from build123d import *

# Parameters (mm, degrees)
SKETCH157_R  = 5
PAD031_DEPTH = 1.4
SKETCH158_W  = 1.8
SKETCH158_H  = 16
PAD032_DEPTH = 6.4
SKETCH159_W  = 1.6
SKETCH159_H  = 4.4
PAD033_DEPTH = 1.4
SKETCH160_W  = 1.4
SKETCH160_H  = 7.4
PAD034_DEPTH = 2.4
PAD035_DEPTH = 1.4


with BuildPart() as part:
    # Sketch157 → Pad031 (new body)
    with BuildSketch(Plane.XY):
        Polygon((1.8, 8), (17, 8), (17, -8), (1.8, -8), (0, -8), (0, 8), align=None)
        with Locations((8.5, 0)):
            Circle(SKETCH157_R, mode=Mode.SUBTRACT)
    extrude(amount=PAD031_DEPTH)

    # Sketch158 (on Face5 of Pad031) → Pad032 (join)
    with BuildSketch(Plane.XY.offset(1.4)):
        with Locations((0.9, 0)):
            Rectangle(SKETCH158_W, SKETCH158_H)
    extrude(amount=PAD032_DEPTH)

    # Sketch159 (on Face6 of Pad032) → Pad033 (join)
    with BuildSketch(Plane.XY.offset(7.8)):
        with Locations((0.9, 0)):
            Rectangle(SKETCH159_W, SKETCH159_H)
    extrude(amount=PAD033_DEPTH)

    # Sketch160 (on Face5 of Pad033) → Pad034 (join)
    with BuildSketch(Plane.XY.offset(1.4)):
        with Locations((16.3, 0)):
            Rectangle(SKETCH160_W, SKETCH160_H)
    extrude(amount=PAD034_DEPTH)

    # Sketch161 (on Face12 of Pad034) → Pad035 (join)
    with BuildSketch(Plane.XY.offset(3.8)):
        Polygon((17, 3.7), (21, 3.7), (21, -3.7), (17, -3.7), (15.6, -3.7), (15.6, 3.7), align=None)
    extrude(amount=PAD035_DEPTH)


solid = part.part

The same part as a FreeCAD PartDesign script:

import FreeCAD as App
import Part
import Sketcher
Q = App.Units.Quantity

doc = App.newDocument("Part")
params = doc.addObject("Spreadsheet::Sheet", "Params")
for row, (alias, value) in enumerate([
    ("sketch1_diameter", "10 mm"),
    ("sketch1_width", "17 mm"),
    ("sketch1_height", "16 mm"),
    ("pad1_length", "1.4 mm"),
    ("sketch2_height", "16 mm"),
    ("sketch2_width", "1.8 mm"),
    ("pad2_length", "6.4 mm"),
    ("sketch3_width", "1.6 mm"),
    ("sketch3_height", "4.4 mm"),
    ("pad3_length", "1.4 mm"),
    ("sketch4_width", "1.4 mm"),
    ("sketch4_height", "7.4 mm"),
    ("pad4_length", "2.4 mm"),
    ("sketch5_width", "5.4 mm"),
    ("sketch5_height", "7.4 mm"),
    ("pad5_length", "1.4 mm"),
], start=1):
    params.set(f"A{row}", alias)
    params.set(f"B{row}", "=" + value)
    params.setAlias(f"B{row}", alias)

body = doc.addObject("PartDesign::Body", "Body")

# Sketch on XY plane
sketch1 = body.newObject("Sketcher::SketchObject", "Sketch")
sketch1.AttachmentSupport = (doc.getObject("XY_Plane"), [""])
sketch1.MapMode = "FlatFace"
sketch1.addGeometry([
    Part.LineSegment(App.Vector(17, 8, 0), App.Vector(0, 8, 0)),  # 0
    Part.LineSegment(App.Vector(0, 8, 0), App.Vector(0, -8, 0)),  # 1
    Part.LineSegment(App.Vector(0, -8, 0), App.Vector(17, -8, 0)),  # 2
    Part.LineSegment(App.Vector(17, -8, 0), App.Vector(17, 8, 0)),  # 3
    Part.Circle(App.Vector(8, 0, 0), App.Vector(0, 0, 1), 5),  # 4
], False)
sketch1.addConstraint([
    Sketcher.Constraint("Coincident", 0, 2, 1, 1),
    Sketcher.Constraint("Coincident", 1, 2, 2, 1),
    Sketcher.Constraint("Coincident", 2, 2, 3, 1),
    Sketcher.Constraint("Coincident", 3, 2, 0, 1),
    Sketcher.Constraint("Horizontal", 0),
    Sketcher.Constraint("Vertical", 1),
    Sketcher.Constraint("Horizontal", 2),
    Sketcher.Constraint("Vertical", 3),
    Sketcher.Constraint("Symmetric", 0, 2, 1, 2, -1, 1),
    Sketcher.Constraint("PointOnObject", 4, 3, -1),
    Sketcher.Constraint("Diameter", 4, Q("10 mm")),
    Sketcher.Constraint("DistanceX", 0, 2, 0, 1, Q("17 mm")),
    Sketcher.Constraint("DistanceY", 1, 2, 1, 1, Q("16 mm")),
    Sketcher.Constraint("DistanceX", -1, 1, 4, 3, Q("8.5 mm")),
])
sketch1.setExpression("Constraints[10]", "Params.sketch1_diameter")
sketch1.setExpression("Constraints[11]", "Params.sketch1_width")
sketch1.setExpression("Constraints[12]", "Params.sketch1_height")
pad1 = body.newObject("PartDesign::Pad", "Pad")
pad1.Profile = sketch1
pad1.setExpression("Length", "Params.pad1_length")

# Sketch on XY plane
sketch2 = body.newObject("Sketcher::SketchObject", "Sketch001")
sketch2.AttachmentSupport = (doc.getObject("XY_Plane"), [""])
sketch2.MapMode = "FlatFace"
sketch2.AttachmentOffset = App.Placement(App.Vector(0, 0, 1.4), App.Rotation())
sketch2.addGeometry([
    Part.LineSegment(App.Vector(0, 8, 0), App.Vector(0, -8, 0)),
    Part.LineSegment(App.Vector(0, -8, 0), App.Vector(1.8, -8, 0)),
    Part.LineSegment(App.Vector(1.8, -8, 0), App.Vector(1.8, 8, 0)),
    Part.LineSegment(App.Vector(1.8, 8, 0), App.Vector(0, 8, 0)),
], False)
sketch2.addConstraint([
    Sketcher.Constraint("Coincident", 0, 2, 1, 1),
    Sketcher.Constraint("Coincident", 1, 2, 2, 1),
    Sketcher.Constraint("Coincident", 2, 2, 3, 1),
    Sketcher.Constraint("Coincident", 3, 2, 0, 1),
    Sketcher.Constraint("Vertical", 0),
    Sketcher.Constraint("Horizontal", 1),
    Sketcher.Constraint("Vertical", 2),
    Sketcher.Constraint("Horizontal", 3),
    Sketcher.Constraint("Symmetric", 0, 2, 3, 2, -1, 1),
    Sketcher.Constraint("DistanceY", 0, 2, 0, 1, Q("16 mm")),
    Sketcher.Constraint("DistanceX", 1, 1, 1, 2, Q("1.8 mm")),
])
sketch2.setExpression("Constraints[9]", "Params.sketch2_height")
sketch2.setExpression("Constraints[10]", "Params.sketch2_width")
pad2 = body.newObject("PartDesign::Pad", "Pad001")
pad2.Profile = sketch2
pad2.setExpression("Length", "Params.pad2_length")

# Sketch on XY plane
sketch3 = body.newObject("Sketcher::SketchObject", "Sketch002")
sketch3.AttachmentSupport = (doc.getObject("XY_Plane"), [""])
sketch3.MapMode = "FlatFace"
sketch3.AttachmentOffset = App.Placement(App.Vector(0, 0, 7.8), App.Rotation())
sketch3.addGeometry([
    Part.LineSegment(App.Vector(0.1, 2.2, 0), App.Vector(0.1, -2.2, 0)),
    Part.LineSegment(App.Vector(0.1, -2.2, 0), App.Vector(1.7, -2.2, 0)),
    Part.LineSegment(App.Vector(1.7, -2.2, 0), App.Vector(1.7, 2.2, 0)),
    Part.LineSegment(App.Vector(1.7, 2.2, 0), App.Vector(0.1, 2.2, 0)),
], False)
sketch3.addConstraint([
    Sketcher.Constraint("Coincident", 0, 2, 1, 1),
    Sketcher.Constraint("Coincident", 1, 2, 2, 1),
    Sketcher.Constraint("Coincident", 2, 2, 3, 1),
    Sketcher.Constraint("Coincident", 3, 2, 0, 1),
    Sketcher.Constraint("Vertical", 0),
    Sketcher.Constraint("Horizontal", 1),
    Sketcher.Constraint("Vertical", 2),
    Sketcher.Constraint("Horizontal", 3),
    Sketcher.Constraint("DistanceX", 1, 1, 1, 2, Q("1.6 mm")),
    Sketcher.Constraint("DistanceY", 0, 2, 0, 1, Q("4.4 mm")),
    Sketcher.Constraint("DistanceX", -1, 1, 0, 2, Q("0.1 mm")),
    Sketcher.Constraint("DistanceY", 0, 2, -1, 1, Q("2.2 mm")),
])
sketch3.setExpression("Constraints[8]", "Params.sketch3_width")
sketch3.setExpression("Constraints[9]", "Params.sketch3_height")
pad3 = body.newObject("PartDesign::Pad", "Pad002")
pad3.Profile = sketch3
pad3.setExpression("Length", "Params.pad3_length")

# Sketch on XY plane
sketch4 = body.newObject("Sketcher::SketchObject", "Sketch003")
sketch4.AttachmentSupport = (doc.getObject("XY_Plane"), [""])
sketch4.MapMode = "FlatFace"
sketch4.AttachmentOffset = App.Placement(App.Vector(0, 0, 1.4), App.Rotation())
sketch4.addGeometry([
    Part.LineSegment(App.Vector(15.6, 3.7, 0), App.Vector(15.6, -3.7, 0)),
    Part.LineSegment(App.Vector(15.6, -3.7, 0), App.Vector(17, -3.7, 0)),
    Part.LineSegment(App.Vector(17, -3.7, 0), App.Vector(17, 3.7, 0)),
    Part.LineSegment(App.Vector(17, 3.7, 0), App.Vector(15.6, 3.7, 0)),
], False)
sketch4.addConstraint([
    Sketcher.Constraint("Coincident", 0, 2, 1, 1),
    Sketcher.Constraint("Coincident", 1, 2, 2, 1),
    Sketcher.Constraint("Coincident", 2, 2, 3, 1),
    Sketcher.Constraint("Coincident", 3, 2, 0, 1),
    Sketcher.Constraint("Vertical", 0),
    Sketcher.Constraint("Horizontal", 1),
    Sketcher.Constraint("Vertical", 2),
    Sketcher.Constraint("Horizontal", 3),
    Sketcher.Constraint("DistanceX", 1, 1, 1, 2, Q("1.4 mm")),
    Sketcher.Constraint("DistanceY", 0, 2, 0, 1, Q("7.4 mm")),
    Sketcher.Constraint("DistanceX", -1, 1, 1, 2, Q("17 mm")),
    Sketcher.Constraint("DistanceY", 0, 2, -1, 1, Q("3.7 mm")),
])
sketch4.setExpression("Constraints[8]", "Params.sketch4_width")
sketch4.setExpression("Constraints[9]", "Params.sketch4_height")
pad4 = body.newObject("PartDesign::Pad", "Pad003")
pad4.Profile = sketch4
pad4.setExpression("Length", "Params.pad4_length")

# Sketch on XY plane
sketch5 = body.newObject("Sketcher::SketchObject", "Sketch004")
sketch5.AttachmentSupport = (doc.getObject("XY_Plane"), [""])
sketch5.MapMode = "FlatFace"
sketch5.AttachmentOffset = App.Placement(App.Vector(0, 0, 3.8), App.Rotation())
sketch5.addGeometry([
    Part.LineSegment(App.Vector(21, 4, 0), App.Vector(16, 4, 0)),
    Part.LineSegment(App.Vector(16, 4, 0), App.Vector(16, -4, 0)),
    Part.LineSegment(App.Vector(16, -4, 0), App.Vector(21, -4, 0)),
    Part.LineSegment(App.Vector(21, -4, 0), App.Vector(21, 4, 0)),
], False)
sketch5.addConstraint([
    Sketcher.Constraint("Coincident", 0, 2, 1, 1),
    Sketcher.Constraint("Coincident", 1, 2, 2, 1),
    Sketcher.Constraint("Coincident", 2, 2, 3, 1),
    Sketcher.Constraint("Coincident", 3, 2, 0, 1),
    Sketcher.Constraint("Horizontal", 0),
    Sketcher.Constraint("Vertical", 1),
    Sketcher.Constraint("Horizontal", 2),
    Sketcher.Constraint("Vertical", 3),
    Sketcher.Constraint("DistanceX", 0, 2, 0, 1, Q("5.4 mm")),
    Sketcher.Constraint("DistanceY", 1, 2, 1, 1, Q("7.4 mm")),
    Sketcher.Constraint("DistanceX", -1, 1, 2, 2, Q("21 mm")),
    Sketcher.Constraint("DistanceY", -1, 1, 0, 2, Q("3.7 mm")),
])
sketch5.setExpression("Constraints[8]", "Params.sketch5_width")
sketch5.setExpression("Constraints[9]", "Params.sketch5_height")
pad5 = body.newObject("PartDesign::Pad", "Pad004")
pad5.Profile = sketch5
pad5.setExpression("Length", "Params.pad5_length")

doc.recompute()
